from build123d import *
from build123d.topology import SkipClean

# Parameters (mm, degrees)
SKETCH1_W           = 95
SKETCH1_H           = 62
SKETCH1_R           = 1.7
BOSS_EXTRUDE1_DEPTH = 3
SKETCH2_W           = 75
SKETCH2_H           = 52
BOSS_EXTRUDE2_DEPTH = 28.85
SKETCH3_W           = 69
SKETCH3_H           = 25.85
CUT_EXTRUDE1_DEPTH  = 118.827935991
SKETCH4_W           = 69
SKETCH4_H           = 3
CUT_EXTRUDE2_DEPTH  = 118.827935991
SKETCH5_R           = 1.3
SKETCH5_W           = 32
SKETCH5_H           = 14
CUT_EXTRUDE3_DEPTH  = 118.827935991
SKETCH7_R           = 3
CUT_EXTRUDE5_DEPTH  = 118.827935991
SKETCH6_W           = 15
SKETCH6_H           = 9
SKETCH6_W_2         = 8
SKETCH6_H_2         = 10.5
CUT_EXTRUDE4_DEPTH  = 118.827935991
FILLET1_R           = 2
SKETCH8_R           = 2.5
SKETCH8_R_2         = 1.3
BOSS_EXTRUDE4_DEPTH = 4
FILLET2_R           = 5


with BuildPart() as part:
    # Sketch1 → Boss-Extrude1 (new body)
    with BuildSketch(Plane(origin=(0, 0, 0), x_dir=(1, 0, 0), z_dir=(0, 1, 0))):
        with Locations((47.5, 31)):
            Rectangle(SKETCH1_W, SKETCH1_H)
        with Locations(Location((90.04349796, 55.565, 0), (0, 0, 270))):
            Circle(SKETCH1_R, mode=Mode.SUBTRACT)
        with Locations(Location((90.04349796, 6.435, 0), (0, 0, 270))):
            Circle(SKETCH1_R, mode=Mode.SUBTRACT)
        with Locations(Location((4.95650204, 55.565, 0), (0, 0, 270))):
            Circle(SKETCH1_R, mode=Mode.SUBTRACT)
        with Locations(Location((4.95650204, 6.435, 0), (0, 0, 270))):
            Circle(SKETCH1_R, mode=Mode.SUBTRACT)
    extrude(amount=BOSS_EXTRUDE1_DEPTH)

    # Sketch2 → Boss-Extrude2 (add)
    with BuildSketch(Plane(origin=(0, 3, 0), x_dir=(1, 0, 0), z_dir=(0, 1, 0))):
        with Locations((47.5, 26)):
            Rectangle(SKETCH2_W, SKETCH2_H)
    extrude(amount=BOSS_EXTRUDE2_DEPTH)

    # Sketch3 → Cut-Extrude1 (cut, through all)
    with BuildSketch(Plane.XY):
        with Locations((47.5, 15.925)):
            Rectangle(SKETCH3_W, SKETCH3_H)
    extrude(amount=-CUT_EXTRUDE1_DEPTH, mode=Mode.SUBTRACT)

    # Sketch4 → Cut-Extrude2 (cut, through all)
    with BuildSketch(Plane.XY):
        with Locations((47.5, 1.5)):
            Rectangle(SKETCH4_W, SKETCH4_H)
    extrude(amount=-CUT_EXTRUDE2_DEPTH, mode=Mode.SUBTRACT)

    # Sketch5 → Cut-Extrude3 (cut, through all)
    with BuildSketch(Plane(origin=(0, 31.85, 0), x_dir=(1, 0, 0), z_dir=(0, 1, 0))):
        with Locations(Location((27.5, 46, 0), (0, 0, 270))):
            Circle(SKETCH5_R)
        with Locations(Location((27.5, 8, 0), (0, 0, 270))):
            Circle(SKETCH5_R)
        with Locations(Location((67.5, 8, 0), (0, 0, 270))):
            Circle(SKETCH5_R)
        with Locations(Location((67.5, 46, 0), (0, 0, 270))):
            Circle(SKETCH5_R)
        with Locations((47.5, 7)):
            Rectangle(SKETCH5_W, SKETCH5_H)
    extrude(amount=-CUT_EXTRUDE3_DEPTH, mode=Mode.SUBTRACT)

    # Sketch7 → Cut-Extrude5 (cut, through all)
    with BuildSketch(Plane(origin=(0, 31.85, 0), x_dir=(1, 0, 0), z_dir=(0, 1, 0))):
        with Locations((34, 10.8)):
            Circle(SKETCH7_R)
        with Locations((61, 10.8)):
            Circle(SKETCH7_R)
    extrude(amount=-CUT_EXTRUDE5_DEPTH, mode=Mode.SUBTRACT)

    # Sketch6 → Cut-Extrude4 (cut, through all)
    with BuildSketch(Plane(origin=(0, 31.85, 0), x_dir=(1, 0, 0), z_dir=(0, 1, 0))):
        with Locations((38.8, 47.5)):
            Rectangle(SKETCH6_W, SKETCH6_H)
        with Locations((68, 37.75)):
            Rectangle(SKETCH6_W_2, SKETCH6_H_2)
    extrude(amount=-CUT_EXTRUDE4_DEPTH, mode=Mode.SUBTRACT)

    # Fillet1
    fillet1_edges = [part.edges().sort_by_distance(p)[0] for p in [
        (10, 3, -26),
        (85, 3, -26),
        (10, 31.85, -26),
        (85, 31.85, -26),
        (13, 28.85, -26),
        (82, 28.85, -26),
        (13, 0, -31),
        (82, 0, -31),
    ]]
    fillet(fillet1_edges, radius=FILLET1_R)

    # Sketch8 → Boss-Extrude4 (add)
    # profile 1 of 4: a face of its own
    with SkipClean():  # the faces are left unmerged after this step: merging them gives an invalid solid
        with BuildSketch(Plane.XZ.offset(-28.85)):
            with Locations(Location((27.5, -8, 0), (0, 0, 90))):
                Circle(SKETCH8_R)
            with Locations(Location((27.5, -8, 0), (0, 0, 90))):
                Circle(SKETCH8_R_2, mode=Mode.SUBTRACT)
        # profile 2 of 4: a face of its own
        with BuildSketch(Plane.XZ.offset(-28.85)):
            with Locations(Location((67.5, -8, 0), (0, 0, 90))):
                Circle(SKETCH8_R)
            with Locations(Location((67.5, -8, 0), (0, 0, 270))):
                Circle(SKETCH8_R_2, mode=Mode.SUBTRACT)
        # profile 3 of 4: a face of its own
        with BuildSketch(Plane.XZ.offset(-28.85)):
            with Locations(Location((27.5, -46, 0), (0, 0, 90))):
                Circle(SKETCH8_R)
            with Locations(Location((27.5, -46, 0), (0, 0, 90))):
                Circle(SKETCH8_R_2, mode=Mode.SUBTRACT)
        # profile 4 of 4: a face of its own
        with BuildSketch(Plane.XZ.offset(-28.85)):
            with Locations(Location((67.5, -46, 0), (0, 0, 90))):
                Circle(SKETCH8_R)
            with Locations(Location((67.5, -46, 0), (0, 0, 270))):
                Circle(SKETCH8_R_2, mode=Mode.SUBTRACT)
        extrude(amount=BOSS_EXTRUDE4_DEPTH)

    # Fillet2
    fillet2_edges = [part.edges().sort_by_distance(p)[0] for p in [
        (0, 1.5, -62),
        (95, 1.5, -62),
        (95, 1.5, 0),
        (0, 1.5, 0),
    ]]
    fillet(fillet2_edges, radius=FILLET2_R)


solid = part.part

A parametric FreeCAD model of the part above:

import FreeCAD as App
import Part
import Sketcher
from FreeCAD import Vector


def edges_at(feature, points):
    """Names of the edges that pass closest to the given points."""
    edges = feature.Shape.Edges
    near = lambda p: min(range(len(edges)), key=lambda i: edges[i].distToShape(Part.Vertex(*p))[0])
    return sorted({f"Edge{near(p) + 1}" for p in points})

doc = App.newDocument("Part")
body = doc.addObject("PartDesign::Body", "Body")

# Sketch on XZ plane
sketch1 = body.newObject("Sketcher::SketchObject", "Sketch")
sketch1.AttachmentSupport = (doc.getObject("XZ_Plane"), [""])
sketch1.MapMode = "FlatFace"
sketch1.addGeometry([
    Part.LineSegment(Vector(0, -62, 0), Vector(0, 0, 0)),  # 0
    Part.LineSegment(Vector(0, 0, 0), Vector(95, 0, 0)),  # 1
    Part.LineSegment(Vector(95, 0, 0), Vector(95, -62, 0)),  # 2
    Part.LineSegment(Vector(95, -62, 0), Vector(0, -62, 0)),  # 3
    Part.Circle(Vector(4.956502, -6.435, 0), Vector(0, 0, 1), 1.7),  # 4
    Part.Circle(Vector(90.043498, -6.435, 0), Vector(0, 0, 1), 1.7),  # 5
    Part.Circle(Vector(4.956502, -55.565, 0), Vector(0, 0, 1), 1.7),  # 6
    Part.Circle(Vector(90.043498, -55.565, 0), Vector(0, 0, 1), 1.7),  # 7
], False)
sketch1.addConstraint([
    Sketcher.Constraint("Coincident", 0, 2, 1, 1),
    Sketcher.Constraint("Coincident", 1, 2, 2, 1),
    Sketcher.Constraint("Coincident", 2, 2, 3, 1),
    Sketcher.Constraint("Coincident", 3, 2, 0, 1),
    Sketcher.Constraint("Vertical", 0),
    Sketcher.Constraint("Horizontal", 1),
    Sketcher.Constraint("Vertical", 2),
    Sketcher.Constraint("Horizontal", 3),
    Sketcher.Constraint("Coincident", 0, 2, -1, 1),
    Sketcher.Constraint("Equal", 4, 5),
    Sketcher.Constraint("Equal", 5, 6),
    Sketcher.Constraint("Equal", 6, 7),
    Sketcher.Constraint("Horizontal", 4, 3, 5, 3),
    Sketcher.Constraint("Horizontal", 6, 3, 7, 3),
    Sketcher.Constraint("Vertical", 4, 3, 6, 3),
    Sketcher.Constraint("Vertical", 5, 3, 7, 3),
    Sketcher.Constraint("Diameter", 4, 3.4),
    Sketcher.Constraint("DistanceX", 1, 1, 1, 2, 95.0),
    Sketcher.Constraint("DistanceY", 0, 1, 0, 2, 62.0),
    Sketcher.Constraint("DistanceY", 6, 3, 4, 3, 49.13),
    Sketcher.Constraint("DistanceY", 4, 3, -1, 1, 6.435),
    Sketcher.Constraint("DistanceX", -1, 1, 4, 3, 4.956502),
    Sketcher.Constraint("DistanceX", -1, 1, 5, 3, 90.043498),
])
pad1 = body.newObject("PartDesign::Pad", "Pad")
pad1.Profile = sketch1
pad1.Length = 3
pad1.Reversed = True

# Sketch on XZ plane
sketch2 = body.newObject("Sketcher::SketchObject", "Sketch001")
sketch2.AttachmentSupport = (doc.getObject("XZ_Plane"), [""])
sketch2.MapMode = "FlatFace"
sketch2.AttachmentOffset = App.Placement(Vector(0, 0, -3), App.Rotation())
sketch2.addGeometry([
    Part.LineSegment(Vector(10, -52, 0), Vector(10, 0, 0)),
    Part.LineSegment(Vector(10, 0, 0), Vector(85, 0, 0)),
    Part.LineSegment(Vector(85, 0, 0), Vector(85, -52, 0)),
    Part.LineSegment(Vector(85, -52, 0), Vector(10, -52, 0)),
], False)
sketch2.addConstraint([
    Sketcher.Constraint("Coincident", 0, 2, 1, 1),
    Sketcher.Constraint("Coincident", 1, 2, 2, 1),
    Sketcher.Constraint("Coincident", 2, 2, 3, 1),
    Sketcher.Constraint("Coincident", 3, 2, 0, 1),
    Sketcher.Constraint("Vertical", 0),
    Sketcher.Constraint("Horizontal", 1),
    Sketcher.Constraint("Vertical", 2),
    Sketcher.Constraint("Horizontal", 3),
    Sketcher.Constraint("PointOnObject", 0, 2, -1),
    Sketcher.Constraint("DistanceX", 1, 1, 1, 2, 75.0),
    Sketcher.Constraint("DistanceY", 0, 1, 0, 2, 52.0),
    Sketcher.Constraint("DistanceX", -1, 1, 0, 2, 10.0),
])
pad2 = body.newObject("PartDesign::Pad", "Pad001")
pad2.Profile = sketch2
pad2.Length = 28.85
pad2.Reversed = True

# Sketch on XY plane
sketch3 = body.newObject("Sketcher::SketchObject", "Sketch002")
sketch3.AttachmentSupport = (doc.getObject("XY_Plane"), [""])
sketch3.MapMode = "FlatFace"
sketch3.addGeometry([
    Part.LineSegment(Vector(13, 28.85, 0), Vector(13, 3, 0)),
    Part.LineSegment(Vector(13, 3, 0), Vector(82, 3, 0)),
    Part.LineSegment(Vector(82, 3, 0), Vector(82, 28.85, 0)),
    Part.LineSegment(Vector(82, 28.85, 0), Vector(13, 28.85, 0)),
], False)
sketch3.addConstraint([
    Sketcher.Constraint("Coincident", 0, 2, 1, 1),
    Sketcher.Constraint("Coincident", 1, 2, 2, 1),
    Sketcher.Constraint("Coincident", 2, 2, 3, 1),
    Sketcher.Constraint("Coincident", 3, 2, 0, 1),
    Sketcher.Constraint("Vertical", 0),
    Sketcher.Constraint("Horizontal", 1),
    Sketcher.Constraint("Vertical", 2),
    Sketcher.Constraint("Horizontal", 3),
    Sketcher.Constraint("DistanceX", 1, 1, 1, 2, 69.0),
    Sketcher.Constraint("DistanceX", -1, 1, 0, 2, 13.0),
    Sketcher.Constraint("DistanceY", -1, 1, 0, 2, 3.0),
    Sketcher.Constraint("DistanceY", 0, 2, 0, 1, 25.85),
])
pocket1 = body.newObject("PartDesign::Pocket", "Pocket")
pocket1.Profile = sketch3
pocket1.Type = "ThroughAll"

# Sketch on XY plane
sketch4 = body.newObject("Sketcher::SketchObject", "Sketch003")
sketch4.AttachmentSupport = (doc.getObject("XY_Plane"), [""])
sketch4.MapMode = "FlatFace"
sketch4.addGeometry([
    Part.LineSegment(Vector(13, 3, 0), Vector(13, 0, 0)),
    Part.LineSegment(Vector(13, 0, 0), Vector(82, 0, 0)),
    Part.LineSegment(Vector(82, 0, 0), Vector(82, 3, 0)),
    Part.LineSegment(Vector(82, 3, 0), Vector(13, 3, 0)),
], False)
sketch4.addConstraint([
    Sketcher.Constraint("Coincident", 0, 2, 1, 1),
    Sketcher.Constraint("Coincident", 1, 2, 2, 1),
    Sketcher.Constraint("Coincident", 2, 2, 3, 1),
    Sketcher.Constraint("Coincident", 3, 2, 0, 1),
    Sketcher.Constraint("Vertical", 0),
    Sketcher.Constraint("Horizontal", 1),
    Sketcher.Constraint("Vertical", 2),
    Sketcher.Constraint("Horizontal", 3),
    Sketcher.Constraint("PointOnObject", 0, 2, -1),
    Sketcher.Constraint("DistanceX", 1, 1, 1, 2, 69.0),
    Sketcher.Constraint("DistanceY", 0, 2, 0, 1, 3.0),
    Sketcher.Constraint("DistanceX", -1, 1, 0, 2, 13.0),
])
pocket2 = body.newObject("PartDesign::Pocket", "Pocket001")
pocket2.Profile = sketch4
pocket2.Type = "ThroughAll"

# Sketch on XZ plane
sketch5 = body.newObject("Sketcher::SketchObject", "Sketch004")
sketch5.AttachmentSupport = (doc.getObject("XZ_Plane"), [""])
sketch5.MapMode = "FlatFace"
sketch5.AttachmentOffset = App.Placement(Vector(0, 0, -31.85), App.Rotation())
sketch5.addGeometry([
    Part.Circle(Vector(27.5, -46, 0), Vector(0, 0, 1), 1.3),  # 0
    Part.Circle(Vector(27.5, -8, 0), Vector(0, 0, 1), 1.3),  # 1
    Part.Circle(Vector(67.5, -8, 0), Vector(0, 0, 1), 1.3),  # 2
    Part.Circle(Vector(67.5, -46, 0), Vector(0, 0, 1), 1.3),  # 3
    Part.LineSegment(Vector(31.5, -14, 0), Vector(31.5, 0, 0)),  # 4
    Part.LineSegment(Vector(31.5, 0, 0), Vector(63.5, 0, 0)),  # 5
    Part.LineSegment(Vector(63.5, 0, 0), Vector(63.5, -14, 0)),  # 6
    Part.LineSegment(Vector(63.5, -14, 0), Vector(31.5, -14, 0)),  # 7
], False)
sketch5.addConstraint([
    Sketcher.Constraint("Coincident", 4, 2, 5, 1),
    Sketcher.Constraint("Coincident", 5, 2, 6, 1),
    Sketcher.Constraint("Coincident", 6, 2, 7, 1),
    Sketcher.Constraint("Coincident", 7, 2, 4, 1),
    Sketcher.Constraint("Vertical", 4),
    Sketcher.Constraint("Horizontal", 5),
    Sketcher.Constraint("Vertical", 6),
    Sketcher.Constraint("Horizontal", 7),
    Sketcher.Constraint("Equal", 0, 1),
    Sketcher.Constraint("Equal", 1, 2),
    Sketcher.Constraint("Equal", 2, 3),
    Sketcher.Constraint("PointOnObject", 4, 2, -1),
    Sketcher.Constraint("Horizontal", 1, 3, 2, 3),
    Sketcher.Constraint("Horizontal", 0, 3, 3, 3),
    Sketcher.Constraint("Vertical", 0, 3, 1, 3),
    Sketcher.Constraint("Vertical", 2, 3, 3, 3),
    Sketcher.Constraint("Diameter", 0, 2.6),
    Sketcher.Constraint("DistanceX", 5, 1, 5, 2, 32.0),
    Sketcher.Constraint("DistanceY", 4, 1, 4, 2, 14.0),
    Sketcher.Constraint("DistanceY", 0, 3, -1, 1, 46.0),
    Sketcher.Constraint("DistanceY", 1, 3, -1, 1, 8.0),
    Sketcher.Constraint("DistanceX", 1, 3, 2, 3, 40.0),
    Sketcher.Constraint("DistanceX", 1, 3, 4, 2, 4.0),
    Sketcher.Constraint("DistanceX", -1, 1, 0, 3, 27.5),
])
pocket3 = body.newObject("PartDesign::Pocket", "Pocket002")
pocket3.Profile = sketch5
pocket3.Type = "ThroughAll"
pocket3.Reversed = True

# Sketch on XZ plane
sketch6 = body.newObject("Sketcher::SketchObject", "Sketch005")
sketch6.AttachmentSupport = (doc.getObject("XZ_Plane"), [""])
sketch6.MapMode = "FlatFace"
sketch6.AttachmentOffset = App.Placement(Vector(0, 0, -31.85), App.Rotation())
sketch6.addGeometry([
    Part.Circle(Vector(34, -10.8, 0), Vector(0, 0, 1), 3),
    Part.Circle(Vector(61, -10.8, 0), Vector(0, 0, 1), 3),
], False)
sketch6.addConstraint([
    Sketcher.Constraint("Equal", 0, 1),
    Sketcher.Constraint("Horizontal", 0, 3, 1, 3),
    Sketcher.Constraint("Diameter", 0, 6.0),
    Sketcher.Constraint("DistanceX", -1, 1, 0, 3, 34.0),
    Sketcher.Constraint("DistanceX", -1, 1, 1, 3, 61.0),
    Sketcher.Constraint("DistanceY", 0, 3, -1, 1, 10.8),
])
pocket4 = body.newObject("PartDesign::Pocket", "Pocket003")
pocket4.Profile = sketch6
pocket4.Type = "ThroughAll"
pocket4.Reversed = True

# Sketch on XZ plane
sketch7 = body.newObject("Sketcher::SketchObject", "Sketch006")
sketch7.AttachmentSupport = (doc.getObject("XZ_Plane"), [""])
sketch7.MapMode = "FlatFace"
sketch7.AttachmentOffset = App.Placement(Vector(0, 0, -31.85), App.Rotation())
sketch7.addGeometry([
    Part.LineSegment(Vector(31.3, -52, 0), Vector(31.3, -43, 0)),  # 0
    Part.LineSegment(Vector(31.3, -43, 0), Vector(46.3, -43, 0)),  # 1
    Part.LineSegment(Vector(46.3, -43, 0), Vector(46.3, -52, 0)),  # 2
    Part.LineSegment(Vector(46.3, -52, 0), Vector(31.3, -52, 0)),  # 3
    Part.LineSegment(Vector(64, -43, 0), Vector(64, -32.5, 0)),  # 4
    Part.LineSegment(Vector(64, -32.5, 0), Vector(72, -32.5, 0)),  # 5
    Part.LineSegment(Vector(72, -32.5, 0), Vector(72, -43, 0)),  # 6
    Part.LineSegment(Vector(72, -43, 0), Vector(64, -43, 0)),  # 7
], False)
sketch7.addConstraint([
    Sketcher.Constraint("Coincident", 0, 2, 1, 1),
    Sketcher.Constraint("Coincident", 1, 2, 2, 1),
    Sketcher.Constraint("Coincident", 2, 2, 3, 1),
    Sketcher.Constraint("Coincident", 3, 2, 0, 1),
    Sketcher.Constraint("Coincident", 4, 2, 5, 1),
    Sketcher.Constraint("Coincident", 5, 2, 6, 1),
    Sketcher.Constraint("Coincident", 6, 2, 7, 1),
    Sketcher.Constraint("Coincident", 7, 2, 4, 1),
    Sketcher.Constraint("Vertical", 0),
    Sketcher.Constraint("Horizontal", 1),
    Sketcher.Constraint("Vertical", 2),
    Sketcher.Constraint("Horizontal", 3),
    Sketcher.Constraint("Vertical", 4),
    Sketcher.Constraint("Horizontal", 5),
    Sketcher.Constraint("Vertical", 6),
    Sketcher.Constraint("Horizontal", 7),
    Sketcher.Constraint("Horizontal", 1, 2, 6, 2),
    Sketcher.Constraint("DistanceX", 1, 1, 1, 2, 15.0),
    Sketcher.Constraint("DistanceX", 5, 1, 5, 2, 8.0),
    Sketcher.Constraint("DistanceY", 0, 1, 0, 2, 9.0),
    Sketcher.Constraint("DistanceY", 4, 1, 4, 2, 10.5),
    Sketcher.Constraint("DistanceY", 0, 2, -1, 1, 43.0),
    Sketcher.Constraint("DistanceX", -1, 1, 4, 2, 64.0),
    Sketcher.Constraint("DistanceX", -1, 1, 0, 2, 31.3),
])
pocket5 = body.newObject("PartDesign::Pocket", "Pocket004")
pocket5.Profile = sketch7
pocket5.Type = "ThroughAll"
pocket5.Reversed = True
doc.recompute()

fillet = body.newObject("PartDesign::Fillet", "Fillet")
fillet.Base = (pocket5, edges_at(pocket5, [
    (10, 3, -26),
    (85, 3, -26),
    (10, 31.85, -26),
    (85, 31.85, -26),
    (13, 28.85, -26),
    (82, 28.85, -26),
    (13, 0, -31),
    (82, 0, -31),
]))
fillet.Radius = 2

# Sketch on XZ plane
sketch8 = body.newObject("Sketcher::SketchObject", "Sketch007")
sketch8.AttachmentSupport = (doc.getObject("XZ_Plane"), [""])
sketch8.MapMode = "FlatFace"
sketch8.AttachmentOffset = App.Placement(Vector(0, 0, -28.85), App.Rotation())
sketch8.addGeometry([
    Part.Circle(Vector(27.5, -8, 0), Vector(0, 0, 1), 2.5),  # 0
    Part.Circle(Vector(27.5, -8, 0), Vector(0, 0, 1), 1.3),  # 1
    Part.Circle(Vector(67.5, -8, 0), Vector(0, 0, 1), 2.5),  # 2
    Part.Circle(Vector(67.5, -8, 0), Vector(0, 0, 1), 1.3),  # 3
    Part.Circle(Vector(27.5, -46, 0), Vector(0, 0, 1), 2.5),  # 4
    Part.Circle(Vector(27.5, -46, 0), Vector(0, 0, 1), 1.3),  # 5
    Part.Circle(Vector(67.5, -46, 0), Vector(0, 0, 1), 2.5),  # 6
    Part.Circle(Vector(67.5, -46, 0), Vector(0, 0, 1), 1.3),  # 7
], False)
sketch8.addConstraint([
    Sketcher.Constraint("Coincident", 1, 3, 0, 3),
    Sketcher.Constraint("Coincident", 3, 3, 2, 3),
    Sketcher.Constraint("Coincident", 5, 3, 4, 3),
    Sketcher.Constraint("Coincident", 7, 3, 6, 3),
    Sketcher.Constraint("Equal", 0, 2),
    Sketcher.Constraint("Equal", 1, 3),
    Sketcher.Constraint("Equal", 2, 4),
    Sketcher.Constraint("Equal", 3, 5),
    Sketcher.Constraint("Equal", 4, 6),
    Sketcher.Constraint("Equal", 5, 7),
    Sketcher.Constraint("Horizontal", 1, 3, 2, 3),
    Sketcher.Constraint("Horizontal", 5, 3, 6, 3),
    Sketcher.Constraint("Vertical", 1, 3, 4, 3),
    Sketcher.Constraint("Vertical", 3, 3, 6, 3),
    Sketcher.Constraint("Diameter", 0, 5.0),
    Sketcher.Constraint("Diameter", 1, 2.6),
    Sketcher.Constraint("DistanceY", 0, 3, -1, 1, 8.0),
    Sketcher.Constraint("DistanceY", 4, 3, -1, 1, 46.0),
    Sketcher.Constraint("DistanceX", 0, 3, 2, 3, 40.0),
    Sketcher.Constraint("DistanceX", -1, 1, 0, 3, 27.5),
])
pad3 = body.newObject("PartDesign::Pad", "Pad002")
pad3.Profile = sketch8
pad3.Length = 4
doc.recompute()

fillet2 = body.newObject("PartDesign::Fillet", "Fillet001")
fillet2.Base = (pad3, edges_at(pad3, [
    (0, 1.5, -62),
    (95, 1.5, -62),
    (95, 1.5, 0),
    (0, 1.5, 0),
]))
fillet2.Radius = 5

doc.recompute()
